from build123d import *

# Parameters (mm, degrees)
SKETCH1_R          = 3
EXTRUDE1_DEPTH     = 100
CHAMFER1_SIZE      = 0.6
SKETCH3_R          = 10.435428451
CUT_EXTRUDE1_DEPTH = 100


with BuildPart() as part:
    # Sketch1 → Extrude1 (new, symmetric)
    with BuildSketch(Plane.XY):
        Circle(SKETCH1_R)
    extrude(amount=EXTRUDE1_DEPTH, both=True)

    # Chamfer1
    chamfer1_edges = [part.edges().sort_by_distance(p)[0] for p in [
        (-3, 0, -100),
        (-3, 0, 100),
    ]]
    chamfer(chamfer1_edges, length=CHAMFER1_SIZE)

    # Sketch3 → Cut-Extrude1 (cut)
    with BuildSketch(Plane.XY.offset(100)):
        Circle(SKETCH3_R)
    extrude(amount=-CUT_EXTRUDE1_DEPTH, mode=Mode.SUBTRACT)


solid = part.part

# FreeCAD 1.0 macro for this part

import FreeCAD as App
import Part
import Sketcher

V = App.Vector


def edges_at(feature, points):
    """Names of the edges that pass closest to the given points."""
    edges = feature.Shape.Edges
    near = lambda p: min(range(len(edges)), key=lambda i: edges[i].distToShape(Part.Vertex(*p))[0])
    return sorted({f"Edge{near(p) + 1}" for p in points})

doc = App.newDocument("Part")
body = doc.addObject("PartDesign::Body", "Body")

# Sketch on XY plane
sketch1 = body.newObject("Sketcher::SketchObject", "Sketch")
sketch1.AttachmentSupport = (doc.getObject("XY_Plane"), [""])
sketch1.MapMode = "FlatFace"
sketch1.addGeometry(Part.Circle(V(0, 0, 0), V(0, 0, 1), 3), False)
sketch1.addConstraint([
    Sketcher.Constraint("Coincident", 0, 3, -1, 1),
    Sketcher.Constraint("Diameter", 0, 6.0),
])
pad1 = body.newObject("PartDesign::Pad", "Pad")
pad1.Profile = sketch1
pad1.Length = 200
pad1.Midplane = True
doc.recompute()

chamfer = body.newObject("PartDesign::Chamfer", "Chamfer")
chamfer.Base = (pad1, edges_at(pad1, [(-3, 0, -100), (-3, 0, 100)]))
chamfer.Size = 0.6

# Sketch on XY plane
sketch2 = body.newObject("Sketcher::SketchObject", "Sketch001")
sketch2.AttachmentSupport = (doc.getObject("XY_Plane"), [""])
sketch2.MapMode = "FlatFace"
sketch2.AttachmentOffset = App.Placement(V(0, 0, 100), App.Rotation())
sketch2.addGeometry(Part.Circle(V(0, 0, 0), V(0, 0, 1), 10), False)
sketch2.addConstraint([
    Sketcher.Constraint("Coincident", 0, 3, -1, 1),
    Sketcher.Constraint("Diameter", 0, 20.870857),
])
pocket1 = body.newObject("PartDesign::Pocket", "Pocket")
pocket1.Profile = sketch2
pocket1.Length = 100

doc.recompute()
